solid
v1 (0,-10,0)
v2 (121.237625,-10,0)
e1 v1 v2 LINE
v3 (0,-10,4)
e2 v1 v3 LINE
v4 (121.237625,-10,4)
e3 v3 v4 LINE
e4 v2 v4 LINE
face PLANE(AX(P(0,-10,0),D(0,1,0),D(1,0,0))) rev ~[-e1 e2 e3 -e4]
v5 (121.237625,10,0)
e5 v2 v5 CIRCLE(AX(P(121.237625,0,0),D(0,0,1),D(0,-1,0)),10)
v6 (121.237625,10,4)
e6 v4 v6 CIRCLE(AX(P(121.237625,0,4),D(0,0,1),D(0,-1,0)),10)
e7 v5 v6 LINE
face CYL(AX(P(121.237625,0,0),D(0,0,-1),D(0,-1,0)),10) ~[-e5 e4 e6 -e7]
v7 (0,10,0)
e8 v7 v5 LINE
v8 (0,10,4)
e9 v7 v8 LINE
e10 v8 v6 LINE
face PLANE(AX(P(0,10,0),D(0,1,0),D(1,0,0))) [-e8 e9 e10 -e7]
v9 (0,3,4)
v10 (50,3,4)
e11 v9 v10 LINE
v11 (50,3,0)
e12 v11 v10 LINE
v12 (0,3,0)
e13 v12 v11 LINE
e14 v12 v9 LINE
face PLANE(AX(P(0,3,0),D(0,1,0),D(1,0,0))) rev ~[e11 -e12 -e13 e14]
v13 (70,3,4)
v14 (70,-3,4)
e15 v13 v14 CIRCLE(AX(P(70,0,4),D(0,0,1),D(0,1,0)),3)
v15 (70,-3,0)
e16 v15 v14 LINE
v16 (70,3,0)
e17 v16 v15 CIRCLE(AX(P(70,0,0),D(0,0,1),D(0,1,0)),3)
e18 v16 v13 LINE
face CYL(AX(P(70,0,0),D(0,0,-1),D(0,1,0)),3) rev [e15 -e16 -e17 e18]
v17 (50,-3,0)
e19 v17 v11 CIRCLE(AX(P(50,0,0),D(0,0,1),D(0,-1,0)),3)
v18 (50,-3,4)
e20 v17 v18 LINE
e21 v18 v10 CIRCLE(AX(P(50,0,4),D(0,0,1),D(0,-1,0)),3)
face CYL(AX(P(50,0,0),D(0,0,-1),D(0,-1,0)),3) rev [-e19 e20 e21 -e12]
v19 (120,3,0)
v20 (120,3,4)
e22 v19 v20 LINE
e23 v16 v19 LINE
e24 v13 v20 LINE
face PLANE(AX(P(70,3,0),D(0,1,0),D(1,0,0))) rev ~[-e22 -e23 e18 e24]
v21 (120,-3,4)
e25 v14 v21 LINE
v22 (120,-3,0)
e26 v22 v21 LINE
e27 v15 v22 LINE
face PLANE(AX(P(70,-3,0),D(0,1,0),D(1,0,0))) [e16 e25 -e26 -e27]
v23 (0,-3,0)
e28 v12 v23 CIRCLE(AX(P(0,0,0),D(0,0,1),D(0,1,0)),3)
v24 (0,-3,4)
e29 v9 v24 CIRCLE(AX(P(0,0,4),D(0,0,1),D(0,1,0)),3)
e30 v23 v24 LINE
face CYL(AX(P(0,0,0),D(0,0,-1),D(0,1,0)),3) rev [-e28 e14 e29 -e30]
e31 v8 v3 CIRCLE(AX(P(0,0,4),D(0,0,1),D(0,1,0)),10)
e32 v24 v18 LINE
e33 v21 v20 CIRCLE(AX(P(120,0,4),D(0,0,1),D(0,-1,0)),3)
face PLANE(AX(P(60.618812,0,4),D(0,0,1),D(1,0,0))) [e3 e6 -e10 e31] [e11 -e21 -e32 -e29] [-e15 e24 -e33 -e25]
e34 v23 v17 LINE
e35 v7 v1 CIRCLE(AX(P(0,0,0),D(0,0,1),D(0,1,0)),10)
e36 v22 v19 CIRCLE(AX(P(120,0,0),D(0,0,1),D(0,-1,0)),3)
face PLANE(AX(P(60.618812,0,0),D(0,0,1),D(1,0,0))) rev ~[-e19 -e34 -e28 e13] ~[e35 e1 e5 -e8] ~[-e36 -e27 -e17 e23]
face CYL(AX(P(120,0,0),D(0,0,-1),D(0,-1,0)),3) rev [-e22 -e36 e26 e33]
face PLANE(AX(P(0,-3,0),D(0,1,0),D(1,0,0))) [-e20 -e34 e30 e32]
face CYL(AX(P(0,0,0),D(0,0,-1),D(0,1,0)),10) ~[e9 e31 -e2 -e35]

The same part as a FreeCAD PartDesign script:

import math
import FreeCAD as App
import Part
import Sketcher
Q = App.Units.Quantity

doc = App.newDocument("Part")
body = doc.addObject("PartDesign::Body", "Body")

# Sketch on XY plane
sketch1 = body.newObject("Sketcher::SketchObject", "Sketch")
sketch1.AttachmentSupport = (doc.getObject("XY_Plane"), [""])
sketch1.MapMode = "FlatFace"
sketch1.addGeometry([
    Part.ArcOfCircle(Part.Circle(App.Vector(0, 0, 0), App.Vector(0, 0, 1), 10), math.radians(90), math.radians(270)),  # 0
    Part.LineSegment(App.Vector(0, -10, 0), App.Vector(121.2, -10, 0)),  # 1
    Part.ArcOfCircle(Part.Circle(App.Vector(121.2, 0, 0), App.Vector(0, 0, 1), 10), math.radians(-90), math.radians(90)),  # 2
    Part.LineSegment(App.Vector(121.2, 10, 0), App.Vector(0, 10, 0)),  # 3
    Part.ArcOfCircle(Part.Circle(App.Vector(0, 0, 0), App.Vector(0, 0, 1), 3), math.radians(90), math.radians(270)),  # 4
    Part.LineSegment(App.Vector(0, 3, 0), App.Vector(50, 3, 0)),  # 5
    Part.ArcOfCircle(Part.Circle(App.Vector(50, 0, 0), App.Vector(0, 0, 1), 3), math.radians(-90), math.radians(90)),  # 6
    Part.LineSegment(App.Vector(50, -3, 0), App.Vector(0, -3, 0)),  # 7
    Part.ArcOfCircle(Part.Circle(App.Vector(70, 0, 0), App.Vector(0, 0, 1), 3), math.radians(90), math.radians(270)),  # 8
    Part.LineSegment(App.Vector(70, 3, 0), App.Vector(120, 3, 0)),  # 9
    Part.ArcOfCircle(Part.Circle(App.Vector(120, 0, 0), App.Vector(0, 0, 1), 3), math.radians(-90), math.radians(90)),  # 10
    Part.LineSegment(App.Vector(120, -3, 0), App.Vector(70, -3, 0)),  # 11
], False)
sketch1.addConstraint([
    Sketcher.Constraint("Tangent", 0, 2, 1, 1),
    Sketcher.Constraint("Tangent", 1, 2, 2, 1),
    Sketcher.Constraint("Tangent", 2, 2, 3, 1),
    Sketcher.Constraint("Tangent", 3, 2, 0, 1),
    Sketcher.Constraint("Tangent", 4, 1, 5, 1),
    Sketcher.Constraint("Tangent", 5, 2, 6, 2),
    Sketcher.Constraint("Tangent", 6, 1, 7, 1),
    Sketcher.Constraint("Tangent", 7, 2, 4, 2),
    Sketcher.Constraint("Tangent", 8, 1, 9, 1),
    Sketcher.Constraint("Tangent", 9, 2, 10, 2),
    Sketcher.Constraint("Tangent", 10, 1, 11, 1),
    Sketcher.Constraint("Tangent", 11, 2, 8, 2),
    Sketcher.Constraint("Horizontal", 1),
    Sketcher.Constraint("Horizontal", 3),
    Sketcher.Constraint("Horizontal", 5),
    Sketcher.Constraint("Horizontal", 7),
    Sketcher.Constraint("Horizontal", 9),
    Sketcher.Constraint("Horizontal", 11),
    Sketcher.Constraint("Coincident", 0, 3, -1, 1),
    Sketcher.Constraint("Coincident", 4, 3, -1, 1),
    Sketcher.Constraint("Equal", 6, 8),
    Sketcher.Constraint("PointOnObject", 8, 3, -1),
    Sketcher.Constraint("Equal", 7, 9),
    Sketcher.Constraint("Radius", 0, Q("10 mm")),
    Sketcher.Constraint("Radius", 4, Q("3 mm")),
    Sketcher.Constraint("DistanceX", 5, 1, 5, 2, Q("50 mm")),
    Sketcher.Constraint("DistanceX", -1, 1, 8, 3, Q("70 mm")),
    Sketcher.Constraint("DistanceX", 1, 1, 1, 2, Q("121.237625 mm")),
])
pad1 = body.newObject("PartDesign::Pad", "Pad")
pad1.Profile = sketch1
pad1.Length = 4

doc.recompute()
